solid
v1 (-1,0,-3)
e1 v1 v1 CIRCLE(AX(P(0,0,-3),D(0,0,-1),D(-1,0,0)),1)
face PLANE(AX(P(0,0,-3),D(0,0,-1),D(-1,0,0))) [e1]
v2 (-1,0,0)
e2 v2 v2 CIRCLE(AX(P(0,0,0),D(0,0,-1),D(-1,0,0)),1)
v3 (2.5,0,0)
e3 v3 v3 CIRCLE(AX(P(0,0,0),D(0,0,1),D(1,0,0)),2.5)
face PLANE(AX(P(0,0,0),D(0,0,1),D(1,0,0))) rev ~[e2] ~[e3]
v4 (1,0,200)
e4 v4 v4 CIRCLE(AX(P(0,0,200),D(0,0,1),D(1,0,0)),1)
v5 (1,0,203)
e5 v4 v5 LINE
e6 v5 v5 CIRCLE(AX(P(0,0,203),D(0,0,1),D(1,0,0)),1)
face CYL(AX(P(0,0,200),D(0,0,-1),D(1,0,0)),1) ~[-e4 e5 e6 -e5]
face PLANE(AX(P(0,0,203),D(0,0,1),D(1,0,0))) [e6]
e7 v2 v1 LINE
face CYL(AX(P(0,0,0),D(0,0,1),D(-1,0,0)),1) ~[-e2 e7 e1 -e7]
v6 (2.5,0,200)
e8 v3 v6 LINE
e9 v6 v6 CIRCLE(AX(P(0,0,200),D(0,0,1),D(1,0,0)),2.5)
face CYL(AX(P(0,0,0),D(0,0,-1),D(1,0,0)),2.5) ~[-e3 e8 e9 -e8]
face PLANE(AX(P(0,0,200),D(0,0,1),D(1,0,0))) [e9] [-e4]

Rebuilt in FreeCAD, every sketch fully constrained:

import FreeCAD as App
import Part
import Sketcher

V = App.Vector

doc = App.newDocument("Part")
params = doc.addObject("Spreadsheet::Sheet", "Params")
for row, (alias, value) in enumerate([
    ("sketch1_diameter", "5 mm"),
    ("pad1_length", "200 mm"),
    ("sketch2_diameter", "2 mm"),
    ("pad2_length", "3 mm"),
    ("sketch3_diameter", "2 mm"),
    ("pad3_length", "3 mm"),
], start=1):
    params.set(f"A{row}", alias)
    params.set(f"B{row}", "=" + value)
    params.setAlias(f"B{row}", alias)

body = doc.addObject("PartDesign::Body", "Body")

# Sketch on XY plane
sketch1 = body.newObject("Sketcher::SketchObject", "Sketch")
sketch1.AttachmentSupport = (doc.getObject("XY_Plane"), [""])
sketch1.MapMode = "FlatFace"
sketch1.addGeometry(Part.Circle(V(0, 0, 0), V(0, 0, 1), 2.5), False)
sketch1.addConstraint(Sketcher.Constraint("Coincident", 0, 3, -1, 1))
sketch1.addConstraint(Sketcher.Constraint("Diameter", 0, 5.0))
sketch1.setExpression("Constraints[1]", "Params.sketch1_diameter")
pad1 = body.newObject("PartDesign::Pad", "Pad")
pad1.Profile = sketch1
pad1.setExpression("Length", "Params.pad1_length")

# Sketch on XY plane
sketch2 = body.newObject("Sketcher::SketchObject", "Sketch001")
sketch2.AttachmentSupport = (doc.getObject("XY_Plane"), [""])
sketch2.MapMode = "FlatFace"
sketch2.AttachmentOffset = App.Placement(V(0, 0, 200), App.Rotation())
sketch2.addGeometry(Part.Circle(V(0, 0, 0), V(0, 0, 1), 1), False)
sketch2.addConstraint(Sketcher.Constraint("Coincident", 0, 3, -1, 1))
sketch2.addConstraint(Sketcher.Constraint("Diameter", 0, 2.0))
sketch2.setExpression("Constraints[1]", "Params.sketch2_diameter")
pad2 = body.newObject("PartDesign::Pad", "Pad001")
pad2.Profile = sketch2
pad2.setExpression("Length", "Params.pad2_length")

# Sketch on XY plane
sketch3 = body.newObject("Sketcher::SketchObject", "Sketch002")
sketch3.AttachmentSupport = (doc.getObject("XY_Plane"), [""])
sketch3.MapMode = "FlatFace"
sketch3.addGeometry(Part.Circle(V(0, 0, 0), V(0, 0, 1), 1), False)
sketch3.addConstraint(Sketcher.Constraint("Coincident", 0, 3, -1, 1))
sketch3.addConstraint(Sketcher.Constraint("Diameter", 0, 2.0))
sketch3.setExpression("Constraints[1]", "Params.sketch3_diameter")
pad3 = body.newObject("PartDesign::Pad", "Pad002")
pad3.Profile = sketch3
pad3.setExpression("Length", "Params.pad3_length")
pad3.Reversed = True

doc.recompute()
